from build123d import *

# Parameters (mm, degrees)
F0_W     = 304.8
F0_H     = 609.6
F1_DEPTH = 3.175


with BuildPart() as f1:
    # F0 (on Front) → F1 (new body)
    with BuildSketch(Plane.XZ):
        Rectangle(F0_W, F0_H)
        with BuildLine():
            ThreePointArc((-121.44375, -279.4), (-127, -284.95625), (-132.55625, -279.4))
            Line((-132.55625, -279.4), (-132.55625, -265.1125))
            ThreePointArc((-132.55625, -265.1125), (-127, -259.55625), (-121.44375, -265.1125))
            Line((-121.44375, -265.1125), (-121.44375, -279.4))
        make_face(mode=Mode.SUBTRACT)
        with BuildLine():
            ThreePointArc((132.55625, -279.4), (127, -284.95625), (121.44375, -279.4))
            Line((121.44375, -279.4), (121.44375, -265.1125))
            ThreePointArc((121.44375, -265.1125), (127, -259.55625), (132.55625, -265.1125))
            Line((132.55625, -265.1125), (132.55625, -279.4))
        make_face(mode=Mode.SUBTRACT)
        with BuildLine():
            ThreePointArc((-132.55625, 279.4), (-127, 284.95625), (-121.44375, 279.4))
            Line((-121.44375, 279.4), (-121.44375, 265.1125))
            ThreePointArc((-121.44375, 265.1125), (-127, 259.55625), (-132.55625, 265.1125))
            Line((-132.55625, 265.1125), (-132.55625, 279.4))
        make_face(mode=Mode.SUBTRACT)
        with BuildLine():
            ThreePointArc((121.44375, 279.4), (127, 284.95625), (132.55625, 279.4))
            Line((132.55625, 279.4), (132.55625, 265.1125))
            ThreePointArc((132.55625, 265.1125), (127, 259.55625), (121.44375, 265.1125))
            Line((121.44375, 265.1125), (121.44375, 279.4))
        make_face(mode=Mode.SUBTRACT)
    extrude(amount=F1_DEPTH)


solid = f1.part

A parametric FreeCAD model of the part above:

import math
import FreeCAD as App
import Part
import Sketcher
from FreeCAD import Vector
Q = App.Units.Quantity


def add_polygon(sketch, points):
    """Adds a closed chain of lines whose ends are joined by coincident constraints."""
    first, n = sketch.GeometryCount, len(points)
    for a, b in zip(points, points[1:] + points[:1]):
        sketch.addGeometry(Part.LineSegment(App.Vector(*a, 0), App.Vector(*b, 0)), False)
    for i in range(n):
        sketch.addConstraint(Sketcher.Constraint("Coincident", first + i, 2, first + (i + 1) % n, 1))

doc = App.newDocument("Part")
body = doc.addObject("PartDesign::Body", "Body")

# Sketch on XZ plane
sketch1 = doc.addObject("Sketcher::SketchObject", "Sketch")
body.addObject(sketch1)
sketch1.AttachmentSupport = (doc.XZ_Plane, [""])
sketch1.MapMode = "FlatFace"
add_polygon(sketch1, [(-152.4, 304.8), (-152.4, -304.8), (152.4, -304.8), (152.4, 304.8)])  # lines 0-3
sketch1.addGeometry(Part.LineSegment(Vector(-121.44375, -265.1125, 0), Vector(-121.44375, -279.4, 0)), False)  # 4
sketch1.addGeometry(Part.ArcOfCircle(Part.Circle(Vector(-127, -279.4, 0), Vector(0, 0, 1), 5.55625), math.radians(180), math.radians(360)), False)  # 5
sketch1.addGeometry(Part.LineSegment(Vector(-132.55625, -279.4, 0), Vector(-132.55625, -265.1125, 0)), False)  # 6
sketch1.addGeometry(Part.ArcOfCircle(Part.Circle(Vector(-127, -265.1125, 0), Vector(0, 0, 1), 5.55625), math.radians(0), math.radians(180)), False)  # 7
sketch1.addGeometry(Part.LineSegment(Vector(132.55625, -265.1125, 0), Vector(132.55625, -279.4, 0)), False)  # 8
sketch1.addGeometry(Part.ArcOfCircle(Part.Circle(Vector(127, -279.4, 0), Vector(0, 0, 1), 5.55625), math.radians(180), math.radians(360)), False)  # 9
sketch1.addGeometry(Part.LineSegment(Vector(121.44375, -279.4, 0), Vector(121.44375, -265.1125, 0)), False)  # 10
sketch1.addGeometry(Part.ArcOfCircle(Part.Circle(Vector(127, -265.1125, 0), Vector(0, 0, 1), 5.55625), math.radians(0), math.radians(180)), False)  # 11
sketch1.addGeometry(Part.LineSegment(Vector(-132.55625, 265.1125, 0), Vector(-132.55625, 279.4, 0)), False)  # 12
sketch1.addGeometry(Part.ArcOfCircle(Part.Circle(Vector(-127, 279.4, 0), Vector(0, 0, 1), 5.55625), math.radians(0), math.radians(180)), False)  # 13
sketch1.addGeometry(Part.LineSegment(Vector(-121.44375, 279.4, 0), Vector(-121.44375, 265.1125, 0)), False)  # 14
sketch1.addGeometry(Part.ArcOfCircle(Part.Circle(Vector(-127, 265.1125, 0), Vector(0, 0, 1), 5.55625), math.radians(180), math.radians(360)), False)  # 15
sketch1.addGeometry(Part.LineSegment(Vector(121.44375, 265.1125, 0), Vector(121.44375, 279.4, 0)), False)  # 16
sketch1.addGeometry(Part.ArcOfCircle(Part.Circle(Vector(127, 279.4, 0), Vector(0, 0, 1), 5.55625), math.radians(0), math.radians(180)), False)  # 17
sketch1.addGeometry(Part.LineSegment(Vector(132.55625, 279.4, 0), Vector(132.55625, 265.1125, 0)), False)  # 18
sketch1.addGeometry(Part.ArcOfCircle(Part.Circle(Vector(127, 265.1125, 0), Vector(0, 0, 1), 5.55625), math.radians(180), math.radians(360)), False)  # 19
sketch1.addConstraint(Sketcher.Constraint("Tangent", 4, 2, 5, 2))
sketch1.addConstraint(Sketcher.Constraint("Tangent", 5, 1, 6, 1))
sketch1.addConstraint(Sketcher.Constraint("Tangent", 6, 2, 7, 2))
sketch1.addConstraint(Sketcher.Constraint("Tangent", 7, 1, 4, 1))
sketch1.addConstraint(Sketcher.Constraint("Tangent", 8, 2, 9, 2))
sketch1.addConstraint(Sketcher.Constraint("Tangent", 9, 1, 10, 1))
sketch1.addConstraint(Sketcher.Constraint("Tangent", 10, 2, 11, 2))
sketch1.addConstraint(Sketcher.Constraint("Tangent", 11, 1, 8, 1))
sketch1.addConstraint(Sketcher.Constraint("Tangent", 12, 2, 13, 2))
sketch1.addConstraint(Sketcher.Constraint("Tangent", 13, 1, 14, 1))
sketch1.addConstraint(Sketcher.Constraint("Tangent", 14, 2, 15, 2))
sketch1.addConstraint(Sketcher.Constraint("Tangent", 15, 1, 12, 1))
sketch1.addConstraint(Sketcher.Constraint("Tangent", 16, 2, 17, 2))
sketch1.addConstraint(Sketcher.Constraint("Tangent", 17, 1, 18, 1))
sketch1.addConstraint(Sketcher.Constraint("Tangent", 18, 2, 19, 2))
sketch1.addConstraint(Sketcher.Constraint("Tangent", 19, 1, 16, 1))
sketch1.addConstraint(Sketcher.Constraint("Vertical", 0))
sketch1.addConstraint(Sketcher.Constraint("Horizontal", 1))
sketch1.addConstraint(Sketcher.Constraint("Vertical", 2))
sketch1.addConstraint(Sketcher.Constraint("Horizontal", 3))
sketch1.addConstraint(Sketcher.Constraint("Vertical", 4))
sketch1.addConstraint(Sketcher.Constraint("Vertical", 6))
sketch1.addConstraint(Sketcher.Constraint("Vertical", 8))
sketch1.addConstraint(Sketcher.Constraint("Vertical", 10))
sketch1.addConstraint(Sketcher.Constraint("Vertical", 12))
sketch1.addConstraint(Sketcher.Constraint("Vertical", 14))
sketch1.addConstraint(Sketcher.Constraint("Vertical", 16))
sketch1.addConstraint(Sketcher.Constraint("Vertical", 18))
sketch1.addConstraint(Sketcher.Constraint("Equal", 7, 9))
sketch1.addConstraint(Sketcher.Constraint("Equal", 11, 13))
sketch1.addConstraint(Sketcher.Constraint("Equal", 15, 17))
sketch1.addConstraint(Sketcher.Constraint("Symmetric", 9, 3, 13, 3, -1, 1))
sketch1.addConstraint(Sketcher.Constraint("Symmetric", 5, 3, 17, 3, -1, 1))
sketch1.addConstraint(Sketcher.Constraint("Symmetric", 0, 2, 2, 2, -1, 1))
sketch1.addConstraint(Sketcher.Constraint("Symmetric", 5, 3, 9, 3, -2))
sketch1.addConstraint(Sketcher.Constraint("Horizontal", 7, 3, 11, 3))
sketch1.addConstraint(Sketcher.Constraint("Horizontal", 15, 3, 19, 3))
sketch1.addConstraint(Sketcher.Constraint("Equal", 10, 12))
sketch1.addConstraint(Sketcher.Constraint("DistanceX", 1, 1, 1, 2, Q("12 in")))
sketch1.addConstraint(Sketcher.Constraint("DistanceY", 0, 2, 0, 1, Q("24 in")))
sketch1.addConstraint(Sketcher.Constraint("DistanceX", 5, 3, -1, 1, Q("5 in")))
sketch1.addConstraint(Sketcher.Constraint("DistanceY", 5, 3, -1, 1, Q("11 in")))
sketch1.addConstraint(Sketcher.Constraint("Radius", 5, Q("0.21875 in")))
sketch1.addConstraint(Sketcher.Constraint("DistanceY", 4, 2, 4, 1, Q("0.5625 in")))
pad1 = doc.addObject("PartDesign::Pad", "Pad")
body.addObject(pad1)
pad1.Profile = sketch1
pad1.Length = Q("0.125 in")

doc.recompute()
